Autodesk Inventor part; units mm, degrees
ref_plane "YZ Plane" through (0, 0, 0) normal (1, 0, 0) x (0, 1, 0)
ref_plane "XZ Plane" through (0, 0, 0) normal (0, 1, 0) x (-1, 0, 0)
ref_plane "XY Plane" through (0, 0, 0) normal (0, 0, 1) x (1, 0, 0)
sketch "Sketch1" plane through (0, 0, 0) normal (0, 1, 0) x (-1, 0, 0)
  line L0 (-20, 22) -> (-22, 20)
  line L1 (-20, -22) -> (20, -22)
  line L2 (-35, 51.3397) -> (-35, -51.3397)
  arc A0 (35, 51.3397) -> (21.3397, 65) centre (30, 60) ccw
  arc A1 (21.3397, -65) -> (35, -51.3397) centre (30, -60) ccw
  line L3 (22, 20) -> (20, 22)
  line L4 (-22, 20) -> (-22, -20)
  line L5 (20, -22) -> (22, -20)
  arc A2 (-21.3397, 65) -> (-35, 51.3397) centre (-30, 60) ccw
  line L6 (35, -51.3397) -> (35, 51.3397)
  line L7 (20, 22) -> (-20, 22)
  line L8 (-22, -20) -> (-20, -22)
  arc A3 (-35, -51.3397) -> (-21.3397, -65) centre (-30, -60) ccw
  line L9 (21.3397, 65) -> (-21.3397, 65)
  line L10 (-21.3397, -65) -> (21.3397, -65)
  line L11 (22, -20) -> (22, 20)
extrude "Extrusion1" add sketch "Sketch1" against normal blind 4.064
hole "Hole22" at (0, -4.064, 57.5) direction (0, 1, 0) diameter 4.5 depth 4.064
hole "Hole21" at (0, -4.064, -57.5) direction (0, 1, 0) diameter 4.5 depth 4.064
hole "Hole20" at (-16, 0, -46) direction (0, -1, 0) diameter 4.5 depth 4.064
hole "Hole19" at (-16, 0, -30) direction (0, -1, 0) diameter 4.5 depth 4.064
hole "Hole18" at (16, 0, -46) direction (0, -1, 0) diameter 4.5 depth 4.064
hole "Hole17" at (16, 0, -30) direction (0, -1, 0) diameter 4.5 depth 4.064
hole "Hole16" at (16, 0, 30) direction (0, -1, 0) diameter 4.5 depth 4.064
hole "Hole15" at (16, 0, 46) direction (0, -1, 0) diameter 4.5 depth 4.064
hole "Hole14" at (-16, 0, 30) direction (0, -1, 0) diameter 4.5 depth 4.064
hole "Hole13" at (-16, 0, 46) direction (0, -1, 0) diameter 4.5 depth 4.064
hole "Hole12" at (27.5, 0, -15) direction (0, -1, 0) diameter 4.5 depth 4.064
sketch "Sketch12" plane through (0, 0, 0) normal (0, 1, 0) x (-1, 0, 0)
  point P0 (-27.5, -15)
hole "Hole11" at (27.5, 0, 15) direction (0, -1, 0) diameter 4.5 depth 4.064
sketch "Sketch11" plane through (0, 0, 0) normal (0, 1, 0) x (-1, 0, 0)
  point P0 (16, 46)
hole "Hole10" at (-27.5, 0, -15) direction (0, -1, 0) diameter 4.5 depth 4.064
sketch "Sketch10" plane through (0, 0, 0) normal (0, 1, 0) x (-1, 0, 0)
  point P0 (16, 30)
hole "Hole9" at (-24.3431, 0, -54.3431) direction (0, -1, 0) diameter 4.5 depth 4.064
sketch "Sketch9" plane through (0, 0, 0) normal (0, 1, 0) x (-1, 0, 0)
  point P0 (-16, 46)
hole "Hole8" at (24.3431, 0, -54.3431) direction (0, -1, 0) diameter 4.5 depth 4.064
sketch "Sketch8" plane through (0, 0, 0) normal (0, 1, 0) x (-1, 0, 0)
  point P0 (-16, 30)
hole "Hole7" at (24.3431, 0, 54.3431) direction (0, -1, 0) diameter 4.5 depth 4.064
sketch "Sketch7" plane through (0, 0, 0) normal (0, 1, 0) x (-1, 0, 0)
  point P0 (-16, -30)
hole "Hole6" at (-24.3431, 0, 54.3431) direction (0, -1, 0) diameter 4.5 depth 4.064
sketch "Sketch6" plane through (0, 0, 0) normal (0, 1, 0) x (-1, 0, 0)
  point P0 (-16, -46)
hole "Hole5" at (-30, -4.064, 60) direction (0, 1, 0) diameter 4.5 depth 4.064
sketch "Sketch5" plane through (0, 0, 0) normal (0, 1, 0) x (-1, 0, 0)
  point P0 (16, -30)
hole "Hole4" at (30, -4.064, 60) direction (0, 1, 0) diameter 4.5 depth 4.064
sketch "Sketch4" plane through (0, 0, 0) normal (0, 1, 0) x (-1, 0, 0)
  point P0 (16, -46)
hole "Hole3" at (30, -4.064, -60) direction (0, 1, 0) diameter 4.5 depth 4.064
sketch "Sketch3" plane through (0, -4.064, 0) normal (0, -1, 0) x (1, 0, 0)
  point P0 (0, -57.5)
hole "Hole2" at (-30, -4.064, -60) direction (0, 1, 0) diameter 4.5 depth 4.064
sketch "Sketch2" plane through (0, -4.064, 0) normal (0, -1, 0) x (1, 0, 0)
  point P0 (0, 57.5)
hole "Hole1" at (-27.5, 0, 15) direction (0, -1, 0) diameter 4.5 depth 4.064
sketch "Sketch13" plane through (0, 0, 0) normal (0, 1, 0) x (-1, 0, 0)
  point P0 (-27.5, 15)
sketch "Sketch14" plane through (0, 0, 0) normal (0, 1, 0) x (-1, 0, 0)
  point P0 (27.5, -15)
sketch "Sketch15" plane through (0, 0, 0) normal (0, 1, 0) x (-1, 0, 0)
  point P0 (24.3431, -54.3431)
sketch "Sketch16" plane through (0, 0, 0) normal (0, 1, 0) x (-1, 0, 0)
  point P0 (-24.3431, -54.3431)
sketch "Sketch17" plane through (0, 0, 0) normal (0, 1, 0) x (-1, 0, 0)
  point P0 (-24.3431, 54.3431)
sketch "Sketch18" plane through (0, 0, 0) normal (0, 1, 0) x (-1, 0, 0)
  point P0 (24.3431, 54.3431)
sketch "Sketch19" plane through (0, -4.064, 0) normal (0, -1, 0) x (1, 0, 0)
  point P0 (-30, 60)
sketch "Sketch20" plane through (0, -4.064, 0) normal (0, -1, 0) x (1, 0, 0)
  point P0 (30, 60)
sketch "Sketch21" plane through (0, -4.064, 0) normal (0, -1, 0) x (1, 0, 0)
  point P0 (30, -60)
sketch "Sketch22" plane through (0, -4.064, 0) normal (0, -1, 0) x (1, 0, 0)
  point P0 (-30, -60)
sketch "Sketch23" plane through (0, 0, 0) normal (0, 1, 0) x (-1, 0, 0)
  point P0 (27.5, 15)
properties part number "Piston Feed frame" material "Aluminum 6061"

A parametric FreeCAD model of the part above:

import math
import FreeCAD as App
import Part
import Sketcher
from FreeCAD import Vector
Q = App.Units.Quantity


def add_polygon(sketch, points):
    """Adds a closed chain of lines whose ends are joined by coincident constraints."""
    first, n = sketch.GeometryCount, len(points)
    for a, b in zip(points, points[1:] + points[:1]):
        sketch.addGeometry(Part.LineSegment(App.Vector(*a, 0), App.Vector(*b, 0)), False)
    for i in range(n):
        sketch.addConstraint(Sketcher.Constraint("Coincident", first + i, 2, first + (i + 1) % n, 1))

doc = App.newDocument("Part")
params = doc.addObject("Spreadsheet::Sheet", "Params")
for row, (alias, value) in enumerate([
    ("sketch1_radius", "10 mm"),
    ("sketch1_width", "40 mm"),
    ("pad1_length", "4.064 mm"),
    ("sketch2_diameter", "4.5 mm"),
    ("hole_diameter", "4.5 mm"),
    ("hole_depth", "4.064 mm"),
    ("sketch3_diameter", "4.5 mm"),
    ("hole2_diameter", "4.5 mm"),
    ("hole2_depth", "4.064 mm"),
    ("sketch4_diameter", "4.5 mm"),
    ("hole3_diameter", "4.5 mm"),
    ("hole3_depth", "4.064 mm"),
    ("sketch5_diameter", "4.5 mm"),
    ("hole4_diameter", "4.5 mm"),
    ("hole4_depth", "4.064 mm"),
    ("sketch6_diameter", "4.5 mm"),
    ("hole5_diameter", "4.5 mm"),
    ("hole5_depth", "4.064 mm"),
    ("sketch7_diameter", "4.5 mm"),
    ("hole6_diameter", "4.5 mm"),
    ("hole6_depth", "4.064 mm"),
    ("sketch8_diameter", "4.5 mm"),
    ("hole7_diameter", "4.5 mm"),
    ("hole7_depth", "4.064 mm"),
    ("sketch9_diameter", "4.5 mm"),
    ("hole8_diameter", "4.5 mm"),
    ("hole8_depth", "4.064 mm"),
    ("sketch10_diameter", "4.5 mm"),
    ("hole9_diameter", "4.5 mm"),
    ("hole9_depth", "4.064 mm"),
    ("sketch11_diameter", "4.5 mm"),
    ("hole10_diameter", "4.5 mm"),
    ("hole10_depth", "4.064 mm"),
    ("sketch12_diameter", "4.5 mm"),
    ("hole11_diameter", "4.5 mm"),
    ("hole11_depth", "4.064 mm"),
    ("sketch13_diameter", "4.5 mm"),
    ("hole12_diameter", "4.5 mm"),
    ("hole12_depth", "4.064 mm"),
    ("sketch14_diameter", "4.5 mm"),
    ("hole13_diameter", "4.5 mm"),
    ("hole13_depth", "4.064 mm"),
    ("sketch15_diameter", "4.5 mm"),
    ("hole14_diameter", "4.5 mm"),
    ("hole14_depth", "4.064 mm"),
    ("sketch16_diameter", "4.5 mm"),
    ("hole15_diameter", "4.5 mm"),
    ("hole15_depth", "4.064 mm"),
    ("sketch17_diameter", "4.5 mm"),
    ("hole16_diameter", "4.5 mm"),
    ("hole16_depth", "4.064 mm"),
    ("sketch18_diameter", "4.5 mm"),
    ("hole17_diameter", "4.5 mm"),
    ("hole17_depth", "4.064 mm"),
    ("sketch19_diameter", "4.5 mm"),
    ("hole18_diameter", "4.5 mm"),
    ("hole18_depth", "4.064 mm"),
    ("sketch20_diameter", "4.5 mm"),
    ("hole19_diameter", "4.5 mm"),
    ("hole19_depth", "4.064 mm"),
    ("sketch21_diameter", "4.5 mm"),
    ("hole20_diameter", "4.5 mm"),
    ("hole20_depth", "4.064 mm"),
    ("sketch22_diameter", "4.5 mm"),
    ("hole21_diameter", "4.5 mm"),
    ("hole21_depth", "4.064 mm"),
    ("sketch23_diameter", "4.5 mm"),
    ("hole22_diameter", "4.5 mm"),
    ("hole22_depth", "4.064 mm"),
], start=1):
    params.set(f"A{row}", alias)
    params.set(f"B{row}", "=" + value)
    params.setAlias(f"B{row}", alias)

body = doc.addObject("PartDesign::Body", "Body")

# Sketch on XZ plane
sketch1 = body.newObject("Sketcher::SketchObject", "Sketch")
sketch1.AttachmentSupport = (doc.getObject("XZ_Plane"), [""])
sketch1.MapMode = "FlatFace"
sketch1.addGeometry(Part.ArcOfCircle(Part.Circle(Vector(30, 60, 0), Vector(0, 0, 1), 10), math.radians(-60), math.radians(150)), False)  # 0
sketch1.addGeometry(Part.LineSegment(Vector(35, 51.3, 0), Vector(35, -51.3, 0)), False)  # 1
sketch1.addGeometry(Part.ArcOfCircle(Part.Circle(Vector(30, -60, 0), Vector(0, 0, 1), 10), math.radians(-150), math.radians(60)), False)  # 2
sketch1.addGeometry(Part.LineSegment(Vector(21.3, -65, 0), Vector(-21.3, -65, 0)), False)  # 3
sketch1.addGeometry(Part.ArcOfCircle(Part.Circle(Vector(-30, -60, 0), Vector(0, 0, 1), 10), math.radians(120), math.radians(330)), False)  # 4
sketch1.addGeometry(Part.LineSegment(Vector(-35, -51.3, 0), Vector(-35, 51.3, 0)), False)  # 5
sketch1.addGeometry(Part.ArcOfCircle(Part.Circle(Vector(-30, 60, 0), Vector(0, 0, 1), 10), math.radians(30), math.radians(240)), False)  # 6
sketch1.addGeometry(Part.LineSegment(Vector(-21.3, 65, 0), Vector(21.3, 65, 0)), False)  # 7
add_polygon(sketch1, [(22, 20), (20, 22), (-20, 22), (-22, 20), (-22, -20), (-20, -22), (20, -22), (22, -20)])  # lines 8-15
sketch1.addConstraint([
    Sketcher.Constraint("Coincident", 0, 1, 1, 1),
    Sketcher.Constraint("Coincident", 1, 2, 2, 2),
    Sketcher.Constraint("Coincident", 2, 1, 3, 1),
    Sketcher.Constraint("Coincident", 3, 2, 4, 2),
    Sketcher.Constraint("Coincident", 4, 1, 5, 1),
    Sketcher.Constraint("Coincident", 5, 2, 6, 2),
    Sketcher.Constraint("Coincident", 6, 1, 7, 1),
    Sketcher.Constraint("Coincident", 7, 2, 0, 2),
    Sketcher.Constraint("Vertical", 1),
    Sketcher.Constraint("Horizontal", 3),
    Sketcher.Constraint("Vertical", 5),
    Sketcher.Constraint("Horizontal", 7),
    Sketcher.Constraint("Horizontal", 9),
    Sketcher.Constraint("Vertical", 11),
    Sketcher.Constraint("Horizontal", 13),
    Sketcher.Constraint("Vertical", 15),
    Sketcher.Constraint("Equal", 0, 2),
    Sketcher.Constraint("Equal", 2, 4),
    Sketcher.Constraint("Equal", 4, 6),
    Sketcher.Constraint("Symmetric", 0, 3, 4, 3, -1, 1),
    Sketcher.Constraint("Symmetric", 2, 3, 6, 3, -1, 1),
    Sketcher.Constraint("Symmetric", 8, 2, 12, 2, -1, 1),
    Sketcher.Constraint("Symmetric", 10, 2, 14, 2, -1, 1),
    Sketcher.Constraint("Symmetric", 2, 3, 4, 3, -2),
    Sketcher.Constraint("Perpendicular", 8, 10),
    Sketcher.Constraint("Perpendicular", 10, 12),
    Sketcher.Constraint("Perpendicular", 12, 14),
    Sketcher.Constraint("Horizontal", 1, 2, 4, 1),
    Sketcher.Constraint("Horizontal", 11, 2, 14, 2),
    Sketcher.Constraint("Vertical", 3, 2, 6, 1),
    Sketcher.Constraint("Vertical", 9, 2, 12, 2),
    Sketcher.Constraint("Equal", 13, 11),
    Sketcher.Constraint("Radius", 0, Q("10 mm")),
    Sketcher.Constraint("DistanceX", 9, 2, 9, 1, Q("40 mm")),
    Sketcher.Constraint("DistanceX", -1, 1, 0, 3, Q("30 mm")),
    Sketcher.Constraint("DistanceY", -1, 1, 0, 3, Q("60 mm")),
    Sketcher.Constraint("DistanceX", -1, 1, 0, 1, Q("35 mm")),
    Sketcher.Constraint("DistanceY", 2, 1, -1, 1, Q("65 mm")),
    Sketcher.Constraint("DistanceY", -1, 1, 8, 2, Q("22 mm")),
])
sketch1.setExpression("Constraints[40]", "Params.sketch1_radius")
sketch1.setExpression("Constraints[41]", "Params.sketch1_width")
pad1 = body.newObject("PartDesign::Pad", "Pad")
pad1.Profile = sketch1
pad1.setExpression("Length", "Params.pad1_length")

# Sketch on XZ plane
sketch2 = body.newObject("Sketcher::SketchObject", "Sketch001")
sketch2.AttachmentSupport = (doc.getObject("XZ_Plane"), [""])
sketch2.MapMode = "FlatFace"
sketch2.AttachmentOffset = App.Placement(Vector(0, 0, 4.064), App.Rotation())
sketch2.addGeometry(Part.Circle(Vector(0, 57.5, 0), Vector(0, 0, 1), 2.2), False)
sketch2.addConstraint([
    Sketcher.Constraint("PointOnObject", 0, 3, -2),
    Sketcher.Constraint("Diameter", 0, Q("4.5 mm")),
    Sketcher.Constraint("DistanceY", -1, 1, 0, 3, Q("57.5 mm")),
])
sketch2.setExpression("Constraints[1]", "Params.sketch2_diameter")
doc.recompute()
hole = body.newObject("PartDesign::Hole", "Hole")
hole.Profile = sketch2
hole.ThreadType = "None"
hole.setExpression("Diameter", "Params.hole_diameter")
hole.DepthType = "Dimension"
hole.setExpression("Depth", "Params.hole_depth")
hole.DrillPoint = "Flat"

# Sketch on XZ plane
sketch3 = body.newObject("Sketcher::SketchObject", "Sketch002")
sketch3.AttachmentSupport = (doc.getObject("XZ_Plane"), [""])
sketch3.MapMode = "FlatFace"
sketch3.AttachmentOffset = App.Placement(Vector(0, 0, 4.064), App.Rotation())
sketch3.addGeometry(Part.Circle(Vector(0, -57.5, 0), Vector(0, 0, 1), 2.2), False)
sketch3.addConstraint([
    Sketcher.Constraint("PointOnObject", 0, 3, -2),
    Sketcher.Constraint("Diameter", 0, Q("4.5 mm")),
    Sketcher.Constraint("DistanceY", 0, 3, -1, 1, Q("57.5 mm")),
])
sketch3.setExpression("Constraints[1]", "Params.sketch3_diameter")
doc.recompute()
hole2 = body.newObject("PartDesign::Hole", "Hole001")
hole2.Profile = sketch3
hole2.ThreadType = "None"
hole2.setExpression("Diameter", "Params.hole2_diameter")
hole2.DepthType = "Dimension"
hole2.setExpression("Depth", "Params.hole2_depth")
hole2.DrillPoint = "Flat"

# Sketch on XZ plane
sketch4 = body.newObject("Sketcher::SketchObject", "Sketch003")
sketch4.AttachmentSupport = (doc.getObject("XZ_Plane"), [""])
sketch4.MapMode = "FlatFace"
sketch4.addGeometry(Part.Circle(Vector(-16, -46, 0), Vector(0, 0, 1), 2.2), False)
sketch4.addConstraint([
    Sketcher.Constraint("Diameter", 0, Q("4.5 mm")),
    Sketcher.Constraint("DistanceX", 0, 3, -1, 1, Q("16 mm")),
    Sketcher.Constraint("DistanceY", 0, 3, -1, 1, Q("46 mm")),
])
sketch4.setExpression("Constraints[0]", "Params.sketch4_diameter")
doc.recompute()
hole3 = body.newObject("PartDesign::Hole", "Hole002")
hole3.Profile = sketch4
hole3.ThreadType = "None"
hole3.setExpression("Diameter", "Params.hole3_diameter")
hole3.DepthType = "Dimension"
hole3.setExpression("Depth", "Params.hole3_depth")
hole3.DrillPoint = "Flat"
hole3.Reversed = True

# Sketch on XZ plane
sketch5 = body.newObject("Sketcher::SketchObject", "Sketch004")
sketch5.AttachmentSupport = (doc.getObject("XZ_Plane"), [""])
sketch5.MapMode = "FlatFace"
sketch5.addGeometry(Part.Circle(Vector(-16, -30, 0), Vector(0, 0, 1), 2.2), False)
sketch5.addConstraint([
    Sketcher.Constraint("Diameter", 0, Q("4.5 mm")),
    Sketcher.Constraint("DistanceX", 0, 3, -1, 1, Q("16 mm")),
    Sketcher.Constraint("DistanceY", 0, 3, -1, 1, Q("30 mm")),
])
sketch5.setExpression("Constraints[0]", "Params.sketch5_diameter")
doc.recompute()
hole4 = body.newObject("PartDesign::Hole", "Hole003")
hole4.Profile = sketch5
hole4.ThreadType = "None"
hole4.setExpression("Diameter", "Params.hole4_diameter")
hole4.DepthType = "Dimension"
hole4.setExpression("Depth", "Params.hole4_depth")
hole4.DrillPoint = "Flat"
hole4.Reversed = True

# Sketch on XZ plane
sketch6 = body.newObject("Sketcher::SketchObject", "Sketch005")
sketch6.AttachmentSupport = (doc.getObject("XZ_Plane"), [""])
sketch6.MapMode = "FlatFace"
sketch6.addGeometry(Part.Circle(Vector(16, -46, 0), Vector(0, 0, 1), 2.2), False)
sketch6.addConstraint([
    Sketcher.Constraint("Diameter", 0, Q("4.5 mm")),
    Sketcher.Constraint("DistanceX", -1, 1, 0, 3, Q("16 mm")),
    Sketcher.Constraint("DistanceY", 0, 3, -1, 1, Q("46 mm")),
])
sketch6.setExpression("Constraints[0]", "Params.sketch6_diameter")
doc.recompute()
hole5 = body.newObject("PartDesign::Hole", "Hole004")
hole5.Profile = sketch6
hole5.ThreadType = "None"
hole5.setExpression("Diameter", "Params.hole5_diameter")
hole5.DepthType = "Dimension"
hole5.setExpression("Depth", "Params.hole5_depth")
hole5.DrillPoint = "Flat"
hole5.Reversed = True

# Sketch on XZ plane
sketch7 = body.newObject("Sketcher::SketchObject", "Sketch006")
sketch7.AttachmentSupport = (doc.getObject("XZ_Plane"), [""])
sketch7.MapMode = "FlatFace"
sketch7.addGeometry(Part.Circle(Vector(16, -30, 0), Vector(0, 0, 1), 2.2), False)
sketch7.addConstraint([
    Sketcher.Constraint("Diameter", 0, Q("4.5 mm")),
    Sketcher.Constraint("DistanceX", -1, 1, 0, 3, Q("16 mm")),
    Sketcher.Constraint("DistanceY", 0, 3, -1, 1, Q("30 mm")),
])
sketch7.setExpression("Constraints[0]", "Params.sketch7_diameter")
doc.recompute()
hole6 = body.newObject("PartDesign::Hole", "Hole005")
hole6.Profile = sketch7
hole6.ThreadType = "None"
hole6.setExpression("Diameter", "Params.hole6_diameter")
hole6.DepthType = "Dimension"
hole6.setExpression("Depth", "Params.hole6_depth")
hole6.DrillPoint = "Flat"
hole6.Reversed = True

# Sketch on XZ plane
sketch8 = body.newObject("Sketcher::SketchObject", "Sketch007")
sketch8.AttachmentSupport = (doc.getObject("XZ_Plane"), [""])
sketch8.MapMode = "FlatFace"
sketch8.addGeometry(Part.Circle(Vector(16, 30, 0), Vector(0, 0, 1), 2.2), False)
sketch8.addConstraint([
    Sketcher.Constraint("Diameter", 0, Q("4.5 mm")),
    Sketcher.Constraint("DistanceX", -1, 1, 0, 3, Q("16 mm")),
    Sketcher.Constraint("DistanceY", -1, 1, 0, 3, Q("30 mm")),
])
sketch8.setExpression("Constraints[0]", "Params.sketch8_diameter")
doc.recompute()
hole7 = body.newObject("PartDesign::Hole", "Hole006")
hole7.Profile = sketch8
hole7.ThreadType = "None"
hole7.setExpression("Diameter", "Params.hole7_diameter")
hole7.DepthType = "Dimension"
hole7.setExpression("Depth", "Params.hole7_depth")
hole7.DrillPoint = "Flat"
hole7.Reversed = True

# Sketch on XZ plane
sketch9 = body.newObject("Sketcher::SketchObject", "Sketch008")
sketch9.AttachmentSupport = (doc.getObject("XZ_Plane"), [""])
sketch9.MapMode = "FlatFace"
sketch9.addGeometry(Part.Circle(Vector(16, 46, 0), Vector(0, 0, 1), 2.2), False)
sketch9.addConstraint([
    Sketcher.Constraint("Diameter", 0, Q("4.5 mm")),
    Sketcher.Constraint("DistanceX", -1, 1, 0, 3, Q("16 mm")),
    Sketcher.Constraint("DistanceY", -1, 1, 0, 3, Q("46 mm")),
])
sketch9.setExpression("Constraints[0]", "Params.sketch9_diameter")
doc.recompute()
hole8 = body.newObject("PartDesign::Hole", "Hole007")
hole8.Profile = sketch9
hole8.ThreadType = "None"
hole8.setExpression("Diameter", "Params.hole8_diameter")
hole8.DepthType = "Dimension"
hole8.setExpression("Depth", "Params.hole8_depth")
hole8.DrillPoint = "Flat"
hole8.Reversed = True

# Sketch on XZ plane
sketch10 = body.newObject("Sketcher::SketchObject", "Sketch009")
sketch10.AttachmentSupport = (doc.getObject("XZ_Plane"), [""])
sketch10.MapMode = "FlatFace"
sketch10.addGeometry(Part.Circle(Vector(-16, 30, 0), Vector(0, 0, 1), 2.2), False)
sketch10.addConstraint([
    Sketcher.Constraint("Diameter", 0, Q("4.5 mm")),
    Sketcher.Constraint("DistanceX", 0, 3, -1, 1, Q("16 mm")),
    Sketcher.Constraint("DistanceY", -1, 1, 0, 3, Q("30 mm")),
])
sketch10.setExpression("Constraints[0]", "Params.sketch10_diameter")
doc.recompute()
hole9 = body.newObject("PartDesign::Hole", "Hole008")
hole9.Profile = sketch10
hole9.ThreadType = "None"
hole9.setExpression("Diameter", "Params.hole9_diameter")
hole9.DepthType = "Dimension"
hole9.setExpression("Depth", "Params.hole9_depth")
hole9.DrillPoint = "Flat"
hole9.Reversed = True

# Sketch on XZ plane
sketch11 = body.newObject("Sketcher::SketchObject", "Sketch010")
sketch11.AttachmentSupport = (doc.getObject("XZ_Plane"), [""])
sketch11.MapMode = "FlatFace"
sketch11.addGeometry(Part.Circle(Vector(-16, 46, 0), Vector(0, 0, 1), 2.2), False)
sketch11.addConstraint([
    Sketcher.Constraint("Diameter", 0, Q("4.5 mm")),
    Sketcher.Constraint("DistanceX", 0, 3, -1, 1, Q("16 mm")),
    Sketcher.Constraint("DistanceY", -1, 1, 0, 3, Q("46 mm")),
])
sketch11.setExpression("Constraints[0]", "Params.sketch11_diameter")
doc.recompute()
hole10 = body.newObject("PartDesign::Hole", "Hole009")
hole10.Profile = sketch11
hole10.ThreadType = "None"
hole10.setExpression("Diameter", "Params.hole10_diameter")
hole10.DepthType = "Dimension"
hole10.setExpression("Depth", "Params.hole10_depth")
hole10.DrillPoint = "Flat"
hole10.Reversed = True

# Sketch on XZ plane
sketch12 = body.newObject("Sketcher::SketchObject", "Sketch011")
sketch12.AttachmentSupport = (doc.getObject("XZ_Plane"), [""])
sketch12.MapMode = "FlatFace"
sketch12.addGeometry(Part.Circle(Vector(27.5, -15, 0), Vector(0, 0, 1), 2.2), False)
sketch12.addConstraint([
    Sketcher.Constraint("Diameter", 0, Q("4.5 mm")),
    Sketcher.Constraint("DistanceY", 0, 3, -1, 1, Q("15 mm")),
    Sketcher.Constraint("DistanceX", -1, 1, 0, 3, Q("27.5 mm")),
])
sketch12.setExpression("Constraints[0]", "Params.sketch12_diameter")
doc.recompute()
hole11 = body.newObject("PartDesign::Hole", "Hole010")
hole11.Profile = sketch12
hole11.ThreadType = "None"
hole11.setExpression("Diameter", "Params.hole11_diameter")
hole11.DepthType = "Dimension"
hole11.setExpression("Depth", "Params.hole11_depth")
hole11.DrillPoint = "Flat"
hole11.Reversed = True

# Sketch on XZ plane
sketch13 = body.newObject("Sketcher::SketchObject", "Sketch012")
sketch13.AttachmentSupport = (doc.getObject("XZ_Plane"), [""])
sketch13.MapMode = "FlatFace"
sketch13.addGeometry(Part.Circle(Vector(27.5, 15, 0), Vector(0, 0, 1), 2.2), False)
sketch13.addConstraint([
    Sketcher.Constraint("Diameter", 0, Q("4.5 mm")),
    Sketcher.Constraint("DistanceY", -1, 1, 0, 3, Q("15 mm")),
    Sketcher.Constraint("DistanceX", -1, 1, 0, 3, Q("27.5 mm")),
])
sketch13.setExpression("Constraints[0]", "Params.sketch13_diameter")
doc.recompute()
hole12 = body.newObject("PartDesign::Hole", "Hole011")
hole12.Profile = sketch13
hole12.ThreadType = "None"
hole12.setExpression("Diameter", "Params.hole12_diameter")
hole12.DepthType = "Dimension"
hole12.setExpression("Depth", "Params.hole12_depth")
hole12.DrillPoint = "Flat"
hole12.Reversed = True

# Sketch on XZ plane
sketch14 = body.newObject("Sketcher::SketchObject", "Sketch013")
sketch14.AttachmentSupport = (doc.getObject("XZ_Plane"), [""])
sketch14.MapMode = "FlatFace"
sketch14.addGeometry(Part.Circle(Vector(-27.5, -15, 0), Vector(0, 0, 1), 2.2), False)
sketch14.addConstraint([
    Sketcher.Constraint("Diameter", 0, Q("4.5 mm")),
    Sketcher.Constraint("DistanceY", 0, 3, -1, 1, Q("15 mm")),
    Sketcher.Constraint("DistanceX", 0, 3, -1, 1, Q("27.5 mm")),
])
sketch14.setExpression("Constraints[0]", "Params.sketch14_diameter")
doc.recompute()
hole13 = body.newObject("PartDesign::Hole", "Hole012")
hole13.Profile = sketch14
hole13.ThreadType = "None"
hole13.setExpression("Diameter", "Params.hole13_diameter")
hole13.DepthType = "Dimension"
hole13.setExpression("Depth", "Params.hole13_depth")
hole13.DrillPoint = "Flat"
hole13.Reversed = True

# Sketch on XZ plane
sketch15 = body.newObject("Sketcher::SketchObject", "Sketch014")
sketch15.AttachmentSupport = (doc.getObject("XZ_Plane"), [""])
sketch15.MapMode = "FlatFace"
sketch15.addGeometry(Part.Circle(Vector(-24.3, -54.3, 0), Vector(0, 0, 1), 2.2), False)
sketch15.addConstraint([
    Sketcher.Constraint("Diameter", 0, Q("4.5 mm")),
    Sketcher.Constraint("DistanceX", 0, 3, -1, 1, Q("24.343 mm")),
    Sketcher.Constraint("DistanceY", 0, 3, -1, 1, Q("54.343 mm")),
])
sketch15.setExpression("Constraints[0]", "Params.sketch15_diameter")
doc.recompute()
hole14 = body.newObject("PartDesign::Hole", "Hole013")
hole14.Profile = sketch15
hole14.ThreadType = "None"
hole14.setExpression("Diameter", "Params.hole14_diameter")
hole14.DepthType = "Dimension"
hole14.setExpression("Depth", "Params.hole14_depth")
hole14.DrillPoint = "Flat"
hole14.Reversed = True

# Sketch on XZ plane
sketch16 = body.newObject("Sketcher::SketchObject", "Sketch015")
sketch16.AttachmentSupport = (doc.getObject("XZ_Plane"), [""])
sketch16.MapMode = "FlatFace"
sketch16.addGeometry(Part.Circle(Vector(24.3, -54.3, 0), Vector(0, 0, 1), 2.2), False)
sketch16.addConstraint([
    Sketcher.Constraint("Diameter", 0, Q("4.5 mm")),
    Sketcher.Constraint("DistanceX", -1, 1, 0, 3, Q("24.343 mm")),
    Sketcher.Constraint("DistanceY", 0, 3, -1, 1, Q("54.343 mm")),
])
sketch16.setExpression("Constraints[0]", "Params.sketch16_diameter")
doc.recompute()
hole15 = body.newObject("PartDesign::Hole", "Hole014")
hole15.Profile = sketch16
hole15.ThreadType = "None"
hole15.setExpression("Diameter", "Params.hole15_diameter")
hole15.DepthType = "Dimension"
hole15.setExpression("Depth", "Params.hole15_depth")
hole15.DrillPoint = "Flat"
hole15.Reversed = True

# Sketch on XZ plane
sketch17 = body.newObject("Sketcher::SketchObject", "Sketch016")
sketch17.AttachmentSupport = (doc.getObject("XZ_Plane"), [""])
sketch17.MapMode = "FlatFace"
sketch17.addGeometry(Part.Circle(Vector(24.3, 54.3, 0), Vector(0, 0, 1), 2.2), False)
sketch17.addConstraint([
    Sketcher.Constraint("Diameter", 0, Q("4.5 mm")),
    Sketcher.Constraint("DistanceX", -1, 1, 0, 3, Q("24.343 mm")),
    Sketcher.Constraint("DistanceY", -1, 1, 0, 3, Q("54.343 mm")),
])
sketch17.setExpression("Constraints[0]", "Params.sketch17_diameter")
doc.recompute()
hole16 = body.newObject("PartDesign::Hole", "Hole015")
hole16.Profile = sketch17
hole16.ThreadType = "None"
hole16.setExpression("Diameter", "Params.hole16_diameter")
hole16.DepthType = "Dimension"
hole16.setExpression("Depth", "Params.hole16_depth")
hole16.DrillPoint = "Flat"
hole16.Reversed = True

# Sketch on XZ plane
sketch18 = body.newObject("Sketcher::SketchObject", "Sketch017")
sketch18.AttachmentSupport = (doc.getObject("XZ_Plane"), [""])
sketch18.MapMode = "FlatFace"
sketch18.addGeometry(Part.Circle(Vector(-24.3, 54.3, 0), Vector(0, 0, 1), 2.2), False)
sketch18.addConstraint([
    Sketcher.Constraint("Diameter", 0, Q("4.5 mm")),
    Sketcher.Constraint("DistanceX", 0, 3, -1, 1, Q("24.343 mm")),
    Sketcher.Constraint("DistanceY", -1, 1, 0, 3, Q("54.343 mm")),
])
sketch18.setExpression("Constraints[0]", "Params.sketch18_diameter")
doc.recompute()
hole17 = body.newObject("PartDesign::Hole", "Hole016")
hole17.Profile = sketch18
hole17.ThreadType = "None"
hole17.setExpression("Diameter", "Params.hole17_diameter")
hole17.DepthType = "Dimension"
hole17.setExpression("Depth", "Params.hole17_depth")
hole17.DrillPoint = "Flat"
hole17.Reversed = True

# Sketch on XZ plane
sketch19 = body.newObject("Sketcher::SketchObject", "Sketch018")
sketch19.AttachmentSupport = (doc.getObject("XZ_Plane"), [""])
sketch19.MapMode = "FlatFace"
sketch19.AttachmentOffset = App.Placement(Vector(0, 0, 4.064), App.Rotation())
sketch19.addGeometry(Part.Circle(Vector(-30, 60, 0), Vector(0, 0, 1), 2.2), False)
sketch19.addConstraint([
    Sketcher.Constraint("Diameter", 0, Q("4.5 mm")),
    Sketcher.Constraint("DistanceX", 0, 3, -1, 1, Q("30 mm")),
    Sketcher.Constraint("DistanceY", -1, 1, 0, 3, Q("60 mm")),
])
sketch19.setExpression("Constraints[0]", "Params.sketch19_diameter")
doc.recompute()
hole18 = body.newObject("PartDesign::Hole", "Hole017")
hole18.Profile = sketch19
hole18.ThreadType = "None"
hole18.setExpression("Diameter", "Params.hole18_diameter")
hole18.DepthType = "Dimension"
hole18.setExpression("Depth", "Params.hole18_depth")
hole18.DrillPoint = "Flat"

# Sketch on XZ plane
sketch20 = body.newObject("Sketcher::SketchObject", "Sketch019")
sketch20.AttachmentSupport = (doc.getObject("XZ_Plane"), [""])
sketch20.MapMode = "FlatFace"
sketch20.AttachmentOffset = App.Placement(Vector(0, 0, 4.064), App.Rotation())
sketch20.addGeometry(Part.Circle(Vector(30, 60, 0), Vector(0, 0, 1), 2.2), False)
sketch20.addConstraint([
    Sketcher.Constraint("Diameter", 0, Q("4.5 mm")),
    Sketcher.Constraint("DistanceX", -1, 1, 0, 3, Q("30 mm")),
    Sketcher.Constraint("DistanceY", -1, 1, 0, 3, Q("60 mm")),
])
sketch20.setExpression("Constraints[0]", "Params.sketch20_diameter")
doc.recompute()
hole19 = body.newObject("PartDesign::Hole", "Hole018")
hole19.Profile = sketch20
hole19.ThreadType = "None"
hole19.setExpression("Diameter", "Params.hole19_diameter")
hole19.DepthType = "Dimension"
hole19.setExpression("Depth", "Params.hole19_depth")
hole19.DrillPoint = "Flat"

# Sketch on XZ plane
sketch21 = body.newObject("Sketcher::SketchObject", "Sketch020")
sketch21.AttachmentSupport = (doc.getObject("XZ_Plane"), [""])
sketch21.MapMode = "FlatFace"
sketch21.AttachmentOffset = App.Placement(Vector(0, 0, 4.064), App.Rotation())
sketch21.addGeometry(Part.Circle(Vector(30, -60, 0), Vector(0, 0, 1), 2.2), False)
sketch21.addConstraint([
    Sketcher.Constraint("Diameter", 0, Q("4.5 mm")),
    Sketcher.Constraint("DistanceX", -1, 1, 0, 3, Q("30 mm")),
    Sketcher.Constraint("DistanceY", 0, 3, -1, 1, Q("60 mm")),
])
sketch21.setExpression("Constraints[0]", "Params.sketch21_diameter")
doc.recompute()
hole20 = body.newObject("PartDesign::Hole", "Hole019")
hole20.Profile = sketch21
hole20.ThreadType = "None"
hole20.setExpression("Diameter", "Params.hole20_diameter")
hole20.DepthType = "Dimension"
hole20.setExpression("Depth", "Params.hole20_depth")
hole20.DrillPoint = "Flat"

# Sketch on XZ plane
sketch22 = body.newObject("Sketcher::SketchObject", "Sketch021")
sketch22.AttachmentSupport = (doc.getObject("XZ_Plane"), [""])
sketch22.MapMode = "FlatFace"
sketch22.AttachmentOffset = App.Placement(Vector(0, 0, 4.064), App.Rotation())
sketch22.addGeometry(Part.Circle(Vector(-30, -60, 0), Vector(0, 0, 1), 2.2), False)
sketch22.addConstraint([
    Sketcher.Constraint("Diameter", 0, Q("4.5 mm")),
    Sketcher.Constraint("DistanceX", 0, 3, -1, 1, Q("30 mm")),
    Sketcher.Constraint("DistanceY", 0, 3, -1, 1, Q("60 mm")),
])
sketch22.setExpression("Constraints[0]", "Params.sketch22_diameter")
doc.recompute()
hole21 = body.newObject("PartDesign::Hole", "Hole020")
hole21.Profile = sketch22
hole21.ThreadType = "None"
hole21.setExpression("Diameter", "Params.hole21_diameter")
hole21.DepthType = "Dimension"
hole21.setExpression("Depth", "Params.hole21_depth")
hole21.DrillPoint = "Flat"

# Sketch on XZ plane
sketch23 = body.newObject("Sketcher::SketchObject", "Sketch022")
sketch23.AttachmentSupport = (doc.getObject("XZ_Plane"), [""])
sketch23.MapMode = "FlatFace"
sketch23.addGeometry(Part.Circle(Vector(-27.5, 15, 0), Vector(0, 0, 1), 2.2), False)
sketch23.addConstraint([
    Sketcher.Constraint("Diameter", 0, Q("4.5 mm")),
    Sketcher.Constraint("DistanceY", -1, 1, 0, 3, Q("15 mm")),
    Sketcher.Constraint("DistanceX", 0, 3, -1, 1, Q("27.5 mm")),
])
sketch23.setExpression("Constraints[0]", "Params.sketch23_diameter")
doc.recompute()
hole22 = body.newObject("PartDesign::Hole", "Hole021")
hole22.Profile = sketch23
hole22.ThreadType = "None"
hole22.setExpression("Diameter", "Params.hole22_diameter")
hole22.DepthType = "Dimension"
hole22.setExpression("Depth", "Params.hole22_depth")
hole22.DrillPoint = "Flat"
hole22.Reversed = True

doc.recompute()
